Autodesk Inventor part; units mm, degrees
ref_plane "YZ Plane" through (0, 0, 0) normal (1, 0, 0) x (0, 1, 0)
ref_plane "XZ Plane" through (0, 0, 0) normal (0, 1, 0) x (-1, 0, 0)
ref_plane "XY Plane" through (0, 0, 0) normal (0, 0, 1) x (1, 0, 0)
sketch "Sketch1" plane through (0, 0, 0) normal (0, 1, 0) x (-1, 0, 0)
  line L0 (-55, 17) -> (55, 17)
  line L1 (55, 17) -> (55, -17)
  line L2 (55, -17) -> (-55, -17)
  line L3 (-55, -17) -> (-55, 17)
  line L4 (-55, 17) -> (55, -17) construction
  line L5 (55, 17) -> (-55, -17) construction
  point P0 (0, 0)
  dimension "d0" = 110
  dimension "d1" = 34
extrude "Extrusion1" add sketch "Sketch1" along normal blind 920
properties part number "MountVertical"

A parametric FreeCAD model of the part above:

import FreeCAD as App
import Part
import Sketcher


def add_polygon(sketch, points):
    """Adds a closed chain of lines whose ends are joined by coincident constraints."""
    first, n = sketch.GeometryCount, len(points)
    for a, b in zip(points, points[1:] + points[:1]):
        sketch.addGeometry(Part.LineSegment(App.Vector(*a, 0), App.Vector(*b, 0)), False)
    for i in range(n):
        sketch.addConstraint(Sketcher.Constraint("Coincident", first + i, 2, first + (i + 1) % n, 1))

doc = App.newDocument("Part")
body = doc.addObject("PartDesign::Body", "Body")

# Sketch on XZ plane
sketch1 = body.newObject("Sketcher::SketchObject", "Sketch")
sketch1.AttachmentSupport = (doc.getObject("XZ_Plane"), [""])
sketch1.MapMode = "FlatFace"
add_polygon(sketch1, [(-55, 17), (55, 17), (55, -17), (-55, -17)])  # lines 0-3
sketch1.addConstraint([
    Sketcher.Constraint("Horizontal", 0),
    Sketcher.Constraint("Vertical", 1),
    Sketcher.Constraint("Horizontal", 2),
    Sketcher.Constraint("Vertical", 3),
    Sketcher.Constraint("Symmetric", 0, 2, 2, 2, -1, 1),
    Sketcher.Constraint("DistanceX", 0, 1, 0, 2, 110.0),
    Sketcher.Constraint("DistanceY", 1, 2, 1, 1, 34.0),
])
pad1 = body.newObject("PartDesign::Pad", "Pad")
pad1.Profile = sketch1
pad1.Length = 920
pad1.Reversed = True

doc.recompute()
